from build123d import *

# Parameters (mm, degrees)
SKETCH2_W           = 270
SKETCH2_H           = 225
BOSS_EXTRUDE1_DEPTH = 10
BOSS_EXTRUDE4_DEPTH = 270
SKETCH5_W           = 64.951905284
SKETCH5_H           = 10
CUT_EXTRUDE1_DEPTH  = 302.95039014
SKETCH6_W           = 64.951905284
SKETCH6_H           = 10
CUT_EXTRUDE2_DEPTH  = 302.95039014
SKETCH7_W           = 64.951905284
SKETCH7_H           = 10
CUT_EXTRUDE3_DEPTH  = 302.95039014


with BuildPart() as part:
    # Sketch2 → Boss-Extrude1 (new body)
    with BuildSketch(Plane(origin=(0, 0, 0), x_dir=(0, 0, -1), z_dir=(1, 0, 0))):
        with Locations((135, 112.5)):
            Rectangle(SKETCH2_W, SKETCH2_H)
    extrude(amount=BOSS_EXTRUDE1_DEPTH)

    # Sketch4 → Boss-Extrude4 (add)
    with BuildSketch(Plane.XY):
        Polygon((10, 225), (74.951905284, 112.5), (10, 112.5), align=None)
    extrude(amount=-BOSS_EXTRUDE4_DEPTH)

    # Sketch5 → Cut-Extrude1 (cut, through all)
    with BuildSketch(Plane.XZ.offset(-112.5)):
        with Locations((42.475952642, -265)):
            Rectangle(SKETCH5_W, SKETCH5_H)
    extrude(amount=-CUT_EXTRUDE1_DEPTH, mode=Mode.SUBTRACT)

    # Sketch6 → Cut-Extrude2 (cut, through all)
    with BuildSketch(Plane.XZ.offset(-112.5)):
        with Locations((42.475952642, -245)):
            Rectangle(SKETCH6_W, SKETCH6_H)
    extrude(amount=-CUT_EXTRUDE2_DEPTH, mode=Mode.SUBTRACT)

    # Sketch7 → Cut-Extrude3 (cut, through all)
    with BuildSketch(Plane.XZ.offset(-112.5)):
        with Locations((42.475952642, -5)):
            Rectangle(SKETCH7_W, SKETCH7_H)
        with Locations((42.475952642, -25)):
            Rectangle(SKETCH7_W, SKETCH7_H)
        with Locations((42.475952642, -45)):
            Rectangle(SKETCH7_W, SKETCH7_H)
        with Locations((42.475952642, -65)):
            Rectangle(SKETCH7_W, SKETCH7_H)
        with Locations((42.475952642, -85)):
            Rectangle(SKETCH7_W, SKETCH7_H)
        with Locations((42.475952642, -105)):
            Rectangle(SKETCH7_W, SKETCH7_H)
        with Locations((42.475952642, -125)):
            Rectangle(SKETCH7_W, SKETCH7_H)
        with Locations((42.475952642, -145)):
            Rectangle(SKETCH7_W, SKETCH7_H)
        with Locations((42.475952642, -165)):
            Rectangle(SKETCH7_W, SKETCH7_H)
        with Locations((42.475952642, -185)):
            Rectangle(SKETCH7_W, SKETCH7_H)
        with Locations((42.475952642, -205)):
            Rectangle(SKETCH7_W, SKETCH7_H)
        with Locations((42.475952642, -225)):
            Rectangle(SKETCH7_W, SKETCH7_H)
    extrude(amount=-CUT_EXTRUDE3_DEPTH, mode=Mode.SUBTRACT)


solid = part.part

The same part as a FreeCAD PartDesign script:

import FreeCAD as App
import Part
import Sketcher
from FreeCAD import Vector
Q = App.Units.Quantity

doc = App.newDocument("Part")
body = doc.addObject("PartDesign::Body", "Body")

# Sketch on YZ plane
sketch1 = body.newObject("Sketcher::SketchObject", "Sketch")
sketch1.AttachmentSupport = (doc.getObject("YZ_Plane"), [""])
sketch1.MapMode = "FlatFace"
sketch1.addGeometry([
    Part.LineSegment(Vector(225, 0, 0), Vector(0, 0, 0)),
    Part.LineSegment(Vector(0, 0, 0), Vector(0, -270, 0)),
    Part.LineSegment(Vector(0, -270, 0), Vector(225, -270, 0)),
    Part.LineSegment(Vector(225, -270, 0), Vector(225, 0, 0)),
], False)
sketch1.addConstraint([
    Sketcher.Constraint("Coincident", 0, 2, 1, 1),
    Sketcher.Constraint("Coincident", 1, 2, 2, 1),
    Sketcher.Constraint("Coincident", 2, 2, 3, 1),
    Sketcher.Constraint("Coincident", 3, 2, 0, 1),
    Sketcher.Constraint("Horizontal", 0),
    Sketcher.Constraint("Vertical", 1),
    Sketcher.Constraint("Horizontal", 2),
    Sketcher.Constraint("Vertical", 3),
    Sketcher.Constraint("Coincident", 0, 2, -1, 1),
    Sketcher.Constraint("DistanceX", 0, 2, 0, 1, 225.0),
    Sketcher.Constraint("DistanceY", 1, 2, 1, 1, 270.0),
])
pad1 = body.newObject("PartDesign::Pad", "Pad")
pad1.Profile = sketch1
pad1.Length = 10

# Sketch on XY plane
sketch2 = body.newObject("Sketcher::SketchObject", "Sketch001")
sketch2.AttachmentSupport = (doc.getObject("XY_Plane"), [""])
sketch2.MapMode = "FlatFace"
sketch2.addGeometry([
    Part.LineSegment(Vector(75, 112, 0), Vector(10, 225, 0)),
    Part.LineSegment(Vector(10, 225, 0), Vector(10, 112, 0)),
    Part.LineSegment(Vector(10, 112, 0), Vector(75, 112, 0)),
], False)
sketch2.addConstraint([
    Sketcher.Constraint("Coincident", 0, 2, 1, 1),
    Sketcher.Constraint("Coincident", 1, 2, 2, 1),
    Sketcher.Constraint("Coincident", 2, 2, 0, 1),
    Sketcher.Constraint("Vertical", 1),
    Sketcher.Constraint("Horizontal", 2),
    Sketcher.Constraint("Angle", 0, Q("120 deg")),
    Sketcher.Constraint("DistanceY", 1, 2, 1, 1, 112.5),
    Sketcher.Constraint("DistanceX", -1, 1, 0, 2, 10.0),
    Sketcher.Constraint("DistanceY", -1, 1, 0, 2, 225.0),
])
pad2 = body.newObject("PartDesign::Pad", "Pad001")
pad2.Profile = sketch2
pad2.Length = 270
pad2.Reversed = True

# Sketch on XZ plane
sketch3 = body.newObject("Sketcher::SketchObject", "Sketch002")
sketch3.AttachmentSupport = (doc.getObject("XZ_Plane"), [""])
sketch3.MapMode = "FlatFace"
sketch3.AttachmentOffset = App.Placement(Vector(0, 0, -112.5), App.Rotation())
sketch3.addGeometry([
    Part.LineSegment(Vector(10, -260, 0), Vector(10, -270, 0)),
    Part.LineSegment(Vector(10, -270, 0), Vector(75, -270, 0)),
    Part.LineSegment(Vector(75, -270, 0), Vector(75, -260, 0)),
    Part.LineSegment(Vector(75, -260, 0), Vector(10, -260, 0)),
], False)
sketch3.addConstraint([
    Sketcher.Constraint("Coincident", 0, 2, 1, 1),
    Sketcher.Constraint("Coincident", 1, 2, 2, 1),
    Sketcher.Constraint("Coincident", 2, 2, 3, 1),
    Sketcher.Constraint("Coincident", 3, 2, 0, 1),
    Sketcher.Constraint("Vertical", 0),
    Sketcher.Constraint("Horizontal", 1),
    Sketcher.Constraint("Vertical", 2),
    Sketcher.Constraint("Horizontal", 3),
    Sketcher.Constraint("DistanceY", 0, 2, 0, 1, 10.0),
    Sketcher.Constraint("DistanceX", -1, 1, 0, 2, 10.0),
    Sketcher.Constraint("DistanceY", 0, 2, -1, 1, 270.0),
    Sketcher.Constraint("DistanceX", 1, 1, 1, 2, 64.951905),
])
pocket1 = body.newObject("PartDesign::Pocket", "Pocket")
pocket1.Profile = sketch3
pocket1.Type = "ThroughAll"

# Sketch on XZ plane
sketch4 = body.newObject("Sketcher::SketchObject", "Sketch003")
sketch4.AttachmentSupport = (doc.getObject("XZ_Plane"), [""])
sketch4.MapMode = "FlatFace"
sketch4.AttachmentOffset = App.Placement(Vector(0, 0, -112.5), App.Rotation())
sketch4.addGeometry([
    Part.LineSegment(Vector(10, -240, 0), Vector(10, -250, 0)),
    Part.LineSegment(Vector(10, -250, 0), Vector(75, -250, 0)),
    Part.LineSegment(Vector(75, -250, 0), Vector(75, -240, 0)),
    Part.LineSegment(Vector(75, -240, 0), Vector(10, -240, 0)),
], False)
sketch4.addConstraint([
    Sketcher.Constraint("Coincident", 0, 2, 1, 1),
    Sketcher.Constraint("Coincident", 1, 2, 2, 1),
    Sketcher.Constraint("Coincident", 2, 2, 3, 1),
    Sketcher.Constraint("Coincident", 3, 2, 0, 1),
    Sketcher.Constraint("Vertical", 0),
    Sketcher.Constraint("Horizontal", 1),
    Sketcher.Constraint("Vertical", 2),
    Sketcher.Constraint("Horizontal", 3),
    Sketcher.Constraint("DistanceY", 0, 2, 0, 1, 10.0),
    Sketcher.Constraint("DistanceX", -1, 1, 0, 2, 10.0),
    Sketcher.Constraint("DistanceY", 0, 2, -1, 1, 250.0),
    Sketcher.Constraint("DistanceX", 1, 1, 1, 2, 64.951905),
])
pocket2 = body.newObject("PartDesign::Pocket", "Pocket001")
pocket2.Profile = sketch4
pocket2.Type = "ThroughAll"

# Sketch on XZ plane
sketch5 = body.newObject("Sketcher::SketchObject", "Sketch004")
sketch5.AttachmentSupport = (doc.getObject("XZ_Plane"), [""])
sketch5.MapMode = "FlatFace"
sketch5.AttachmentOffset = App.Placement(Vector(0, 0, -112.5), App.Rotation())
sketch5.addGeometry([
    Part.LineSegment(Vector(10, 0, 0), Vector(10, -10, 0)),  # 0
    Part.LineSegment(Vector(10, -10, 0), Vector(75, -10, 0)),  # 1
    Part.LineSegment(Vector(75, -10, 0), Vector(75, 0, 0)),  # 2
    Part.LineSegment(Vector(75, 0, 0), Vector(10, 0, 0)),  # 3
    Part.LineSegment(Vector(10, -20, 0), Vector(10, -30, 0)),  # 4
    Part.LineSegment(Vector(10, -30, 0), Vector(75, -30, 0)),  # 5
    Part.LineSegment(Vector(75, -30, 0), Vector(75, -20, 0)),  # 6
    Part.LineSegment(Vector(75, -20, 0), Vector(10, -20, 0)),  # 7
    Part.LineSegment(Vector(10, -40, 0), Vector(10, -50, 0)),  # 8
    Part.LineSegment(Vector(10, -50, 0), Vector(75, -50, 0)),  # 9
    Part.LineSegment(Vector(75, -50, 0), Vector(75, -40, 0)),  # 10
    Part.LineSegment(Vector(75, -40, 0), Vector(10, -40, 0)),  # 11
    Part.LineSegment(Vector(10, -60, 0), Vector(10, -70, 0)),  # 12
    Part.LineSegment(Vector(10, -70, 0), Vector(75, -70, 0)),  # 13
    Part.LineSegment(Vector(75, -70, 0), Vector(75, -60, 0)),  # 14
    Part.LineSegment(Vector(75, -60, 0), Vector(10, -60, 0)),  # 15
    Part.LineSegment(Vector(10, -80, 0), Vector(10, -90, 0)),  # 16
    Part.LineSegment(Vector(10, -90, 0), Vector(75, -90, 0)),  # 17
    Part.LineSegment(Vector(75, -90, 0), Vector(75, -80, 0)),  # 18
    Part.LineSegment(Vector(75, -80, 0), Vector(10, -80, 0)),  # 19
    Part.LineSegment(Vector(10, -100, 0), Vector(10, -110, 0)),  # 20
    Part.LineSegment(Vector(10, -110, 0), Vector(75, -110, 0)),  # 21
    Part.LineSegment(Vector(75, -110, 0), Vector(75, -100, 0)),  # 22
    Part.LineSegment(Vector(75, -100, 0), Vector(10, -100, 0)),  # 23
    Part.LineSegment(Vector(10, -120, 0), Vector(10, -130, 0)),  # 24
    Part.LineSegment(Vector(10, -130, 0), Vector(75, -130, 0)),  # 25
    Part.LineSegment(Vector(75, -130, 0), Vector(75, -120, 0)),  # 26
    Part.LineSegment(Vector(75, -120, 0), Vector(10, -120, 0)),  # 27
    Part.LineSegment(Vector(10, -140, 0), Vector(10, -150, 0)),  # 28
    Part.LineSegment(Vector(10, -150, 0), Vector(75, -150, 0)),  # 29
    Part.LineSegment(Vector(75, -150, 0), Vector(75, -140, 0)),  # 30
    Part.LineSegment(Vector(75, -140, 0), Vector(10, -140, 0)),  # 31
    Part.LineSegment(Vector(10, -160, 0), Vector(10, -170, 0)),  # 32
    Part.LineSegment(Vector(10, -170, 0), Vector(75, -170, 0)),  # 33
    Part.LineSegment(Vector(75, -170, 0), Vector(75, -160, 0)),  # 34
    Part.LineSegment(Vector(75, -160, 0), Vector(10, -160, 0)),  # 35
    Part.LineSegment(Vector(10, -180, 0), Vector(10, -190, 0)),  # 36
    Part.LineSegment(Vector(10, -190, 0), Vector(75, -190, 0)),  # 37
    Part.LineSegment(Vector(75, -190, 0), Vector(75, -180, 0)),  # 38
    Part.LineSegment(Vector(75, -180, 0), Vector(10, -180, 0)),  # 39
    Part.LineSegment(Vector(10, -200, 0), Vector(10, -210, 0)),  # 40
    Part.LineSegment(Vector(10, -210, 0), Vector(75, -210, 0)),  # 41
    Part.LineSegment(Vector(75, -210, 0), Vector(75, -200, 0)),  # 42
    Part.LineSegment(Vector(75, -200, 0), Vector(10, -200, 0)),  # 43
    Part.LineSegment(Vector(10, -220, 0), Vector(10, -230, 0)),  # 44
    Part.LineSegment(Vector(10, -230, 0), Vector(75, -230, 0)),  # 45
    Part.LineSegment(Vector(75, -230, 0), Vector(75, -220, 0)),  # 46
    Part.LineSegment(Vector(75, -220, 0), Vector(10, -220, 0)),  # 47
], False)
sketch5.addConstraint([
    Sketcher.Constraint("Coincident", 0, 2, 1, 1),
    Sketcher.Constraint("Coincident", 1, 2, 2, 1),
    Sketcher.Constraint("Coincident", 2, 2, 3, 1),
    Sketcher.Constraint("Coincident", 3, 2, 0, 1),
    Sketcher.Constraint("Coincident", 4, 2, 5, 1),
    Sketcher.Constraint("Coincident", 5, 2, 6, 1),
    Sketcher.Constraint("Coincident", 6, 2, 7, 1),
    Sketcher.Constraint("Coincident", 7, 2, 4, 1),
    Sketcher.Constraint("Coincident", 8, 2, 9, 1),
    Sketcher.Constraint("Coincident", 9, 2, 10, 1),
    Sketcher.Constraint("Coincident", 10, 2, 11, 1),
    Sketcher.Constraint("Coincident", 11, 2, 8, 1),
    Sketcher.Constraint("Coincident", 12, 2, 13, 1),
    Sketcher.Constraint("Coincident", 13, 2, 14, 1),
    Sketcher.Constraint("Coincident", 14, 2, 15, 1),
    Sketcher.Constraint("Coincident", 15, 2, 12, 1),
    Sketcher.Constraint("Coincident", 16, 2, 17, 1),
    Sketcher.Constraint("Coincident", 17, 2, 18, 1),
    Sketcher.Constraint("Coincident", 18, 2, 19, 1),
    Sketcher.Constraint("Coincident", 19, 2, 16, 1),
    Sketcher.Constraint("Coincident", 20, 2, 21, 1),
    Sketcher.Constraint("Coincident", 21, 2, 22, 1),
    Sketcher.Constraint("Coincident", 22, 2, 23, 1),
    Sketcher.Constraint("Coincident", 23, 2, 20, 1),
    Sketcher.Constraint("Coincident", 24, 2, 25, 1),
    Sketcher.Constraint("Coincident", 25, 2, 26, 1),
    Sketcher.Constraint("Coincident", 26, 2, 27, 1),
    Sketcher.Constraint("Coincident", 27, 2, 24, 1),
    Sketcher.Constraint("Coincident", 28, 2, 29, 1),
    Sketcher.Constraint("Coincident", 29, 2, 30, 1),
    Sketcher.Constraint("Coincident", 30, 2, 31, 1),
    Sketcher.Constraint("Coincident", 31, 2, 28, 1),
    Sketcher.Constraint("Coincident", 32, 2, 33, 1),
    Sketcher.Constraint("Coincident", 33, 2, 34, 1),
    Sketcher.Constraint("Coincident", 34, 2, 35, 1),
    Sketcher.Constraint("Coincident", 35, 2, 32, 1),
    Sketcher.Constraint("Coincident", 36, 2, 37, 1),
    Sketcher.Constraint("Coincident", 37, 2, 38, 1),
    Sketcher.Constraint("Coincident", 38, 2, 39, 1),
    Sketcher.Constraint("Coincident", 39, 2, 36, 1),
    Sketcher.Constraint("Coincident", 40, 2, 41, 1),
    Sketcher.Constraint("Coincident", 41, 2, 42, 1),
    Sketcher.Constraint("Coincident", 42, 2, 43, 1),
    Sketcher.Constraint("Coincident", 43, 2, 40, 1),
    Sketcher.Constraint("Coincident", 44, 2, 45, 1),
    Sketcher.Constraint("Coincident", 45, 2, 46, 1),
    Sketcher.Constraint("Coincident", 46, 2, 47, 1),
    Sketcher.Constraint("Coincident", 47, 2, 44, 1),
    Sketcher.Constraint("Vertical", 0),
    Sketcher.Constraint("Horizontal", 1),
    Sketcher.Constraint("Vertical", 2),
    Sketcher.Constraint("Horizontal", 3),
    Sketcher.Constraint("Vertical", 4),
    Sketcher.Constraint("Horizontal", 5),
    Sketcher.Constraint("Vertical", 6),
    Sketcher.Constraint("Horizontal", 7),
    Sketcher.Constraint("Vertical", 8),
    Sketcher.Constraint("Horizontal", 9),
    Sketcher.Constraint("Vertical", 10),
    Sketcher.Constraint("Horizontal", 11),
    Sketcher.Constraint("Vertical", 12),
    Sketcher.Constraint("Horizontal", 13),
    Sketcher.Constraint("Vertical", 14),
    Sketcher.Constraint("Horizontal", 15),
    Sketcher.Constraint("Vertical", 16),
    Sketcher.Constraint("Horizontal", 17),
    Sketcher.Constraint("Vertical", 18),
    Sketcher.Constraint("Horizontal", 19),
    Sketcher.Constraint("Vertical", 20),
    Sketcher.Constraint("Horizontal", 21),
    Sketcher.Constraint("Vertical", 22),
    Sketcher.Constraint("Horizontal", 23),
    Sketcher.Constraint("Vertical", 24),
    Sketcher.Constraint("Horizontal", 25),
    Sketcher.Constraint("Vertical", 26),
    Sketcher.Constraint("Horizontal", 27),
    Sketcher.Constraint("Vertical", 28),
    Sketcher.Constraint("Horizontal", 29),
    Sketcher.Constraint("Vertical", 30),
    Sketcher.Constraint("Horizontal", 31),
    Sketcher.Constraint("Vertical", 32),
    Sketcher.Constraint("Horizontal", 33),
    Sketcher.Constraint("Vertical", 34),
    Sketcher.Constraint("Horizontal", 35),
    Sketcher.Constraint("Vertical", 36),
    Sketcher.Constraint("Horizontal", 37),
    Sketcher.Constraint("Vertical", 38),
    Sketcher.Constraint("Horizontal", 39),
    Sketcher.Constraint("Vertical", 40),
    Sketcher.Constraint("Horizontal", 41),
    Sketcher.Constraint("Vertical", 42),
    Sketcher.Constraint("Horizontal", 43),
    Sketcher.Constraint("Vertical", 44),
    Sketcher.Constraint("Horizontal", 45),
    Sketcher.Constraint("Vertical", 46),
    Sketcher.Constraint("Horizontal", 47),
    Sketcher.Constraint("PointOnObject", 2, 2, -1),
    Sketcher.Constraint("Vertical", 3, 2, 4, 2),
    Sketcher.Constraint("Vertical", 2, 2, 5, 2),
    Sketcher.Constraint("Vertical", 7, 2, 8, 2),
    Sketcher.Constraint("Vertical", 6, 2, 9, 2),
    Sketcher.Constraint("Vertical", 11, 2, 12, 2),
    Sketcher.Constraint("Vertical", 10, 2, 13, 2),
    Sketcher.Constraint("Vertical", 15, 2, 16, 2),
    Sketcher.Constraint("Vertical", 14, 2, 17, 2),
    Sketcher.Constraint("Vertical", 19, 2, 20, 2),
    Sketcher.Constraint("Vertical", 18, 2, 21, 2),
    Sketcher.Constraint("Vertical", 23, 2, 24, 2),
    Sketcher.Constraint("Vertical", 22, 2, 25, 2),
    Sketcher.Constraint("Vertical", 27, 2, 28, 2),
    Sketcher.Constraint("Vertical", 26, 2, 29, 2),
    Sketcher.Constraint("Vertical", 31, 2, 32, 2),
    Sketcher.Constraint("Vertical", 30, 2, 33, 2),
    Sketcher.Constraint("Vertical", 35, 2, 36, 2),
    Sketcher.Constraint("Vertical", 34, 2, 37, 2),
    Sketcher.Constraint("Vertical", 39, 2, 40, 2),
    Sketcher.Constraint("Vertical", 38, 2, 41, 2),
    Sketcher.Constraint("Vertical", 43, 2, 44, 2),
    Sketcher.Constraint("Vertical", 42, 2, 45, 2),
    Sketcher.Constraint("Equal", 2, 4),
    Sketcher.Constraint("Equal", 6, 8),
    Sketcher.Constraint("Equal", 10, 12),
    Sketcher.Constraint("Equal", 14, 16),
    Sketcher.Constraint("Equal", 18, 20),
    Sketcher.Constraint("Equal", 22, 24),
    Sketcher.Constraint("Equal", 26, 28),
    Sketcher.Constraint("Equal", 30, 32),
    Sketcher.Constraint("Equal", 34, 36),
    Sketcher.Constraint("Equal", 38, 40),
    Sketcher.Constraint("Equal", 42, 44),
    Sketcher.Constraint("DistanceY", 0, 2, 0, 1, 10.0),
    Sketcher.Constraint("DistanceX", -1, 1, 0, 2, 10.0),
    Sketcher.Constraint("DistanceY", 4, 2, -1, 1, 30.0),
    Sketcher.Constraint("DistanceY", 8, 2, -1, 1, 50.0),
    Sketcher.Constraint("DistanceY", 12, 2, -1, 1, 70.0),
    Sketcher.Constraint("DistanceY", 16, 2, -1, 1, 90.0),
    Sketcher.Constraint("DistanceY", 20, 2, -1, 1, 110.0),
    Sketcher.Constraint("DistanceY", 24, 2, -1, 1, 130.0),
    Sketcher.Constraint("DistanceY", 28, 2, -1, 1, 150.0),
    Sketcher.Constraint("DistanceY", 32, 2, -1, 1, 170.0),
    Sketcher.Constraint("DistanceY", 36, 2, -1, 1, 190.0),
    Sketcher.Constraint("DistanceY", 40, 2, -1, 1, 210.0),
    Sketcher.Constraint("DistanceY", 44, 2, -1, 1, 230.0),
    Sketcher.Constraint("DistanceX", 1, 1, 1, 2, 64.951905),
])
pocket3 = body.newObject("PartDesign::Pocket", "Pocket002")
pocket3.Profile = sketch5
pocket3.Type = "ThroughAll"

doc.recompute()
